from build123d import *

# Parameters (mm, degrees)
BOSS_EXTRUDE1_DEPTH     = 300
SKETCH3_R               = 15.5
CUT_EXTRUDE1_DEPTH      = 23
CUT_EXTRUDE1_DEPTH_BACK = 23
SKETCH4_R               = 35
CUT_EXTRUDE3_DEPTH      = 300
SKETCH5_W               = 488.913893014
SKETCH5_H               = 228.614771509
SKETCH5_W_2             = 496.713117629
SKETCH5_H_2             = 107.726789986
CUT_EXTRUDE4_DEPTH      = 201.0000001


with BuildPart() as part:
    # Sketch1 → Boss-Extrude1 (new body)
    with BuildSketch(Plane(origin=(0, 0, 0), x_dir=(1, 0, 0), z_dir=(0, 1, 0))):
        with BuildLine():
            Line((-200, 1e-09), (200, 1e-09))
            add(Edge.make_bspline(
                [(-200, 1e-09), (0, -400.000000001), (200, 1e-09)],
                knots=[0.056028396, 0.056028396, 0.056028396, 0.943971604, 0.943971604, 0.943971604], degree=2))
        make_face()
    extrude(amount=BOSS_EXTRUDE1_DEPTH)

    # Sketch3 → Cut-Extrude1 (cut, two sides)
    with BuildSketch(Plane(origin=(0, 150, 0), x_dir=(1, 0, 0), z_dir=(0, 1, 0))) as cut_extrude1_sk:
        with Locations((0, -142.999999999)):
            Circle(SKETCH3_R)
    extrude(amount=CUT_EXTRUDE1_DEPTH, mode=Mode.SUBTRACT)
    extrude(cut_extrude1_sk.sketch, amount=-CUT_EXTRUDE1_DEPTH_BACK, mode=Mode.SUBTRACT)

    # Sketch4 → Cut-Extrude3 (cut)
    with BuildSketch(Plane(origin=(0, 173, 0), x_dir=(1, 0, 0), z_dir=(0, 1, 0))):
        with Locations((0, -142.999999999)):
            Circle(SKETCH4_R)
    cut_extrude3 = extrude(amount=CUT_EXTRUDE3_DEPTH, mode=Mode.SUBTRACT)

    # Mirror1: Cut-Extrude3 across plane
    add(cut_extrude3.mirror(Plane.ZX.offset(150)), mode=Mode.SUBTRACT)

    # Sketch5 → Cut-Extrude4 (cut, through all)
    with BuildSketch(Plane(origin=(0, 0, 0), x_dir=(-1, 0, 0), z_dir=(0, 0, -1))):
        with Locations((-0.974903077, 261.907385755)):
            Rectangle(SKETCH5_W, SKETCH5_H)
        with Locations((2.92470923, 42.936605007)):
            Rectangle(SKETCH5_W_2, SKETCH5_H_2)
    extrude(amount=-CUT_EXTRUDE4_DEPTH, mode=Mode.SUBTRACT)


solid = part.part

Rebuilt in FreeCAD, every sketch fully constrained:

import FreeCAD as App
import Part
import Sketcher


def add_polygon(sketch, points):
    """Adds a closed chain of lines whose ends are joined by coincident constraints."""
    first, n = sketch.GeometryCount, len(points)
    for a, b in zip(points, points[1:] + points[:1]):
        sketch.addGeometry(Part.LineSegment(App.Vector(*a, 0), App.Vector(*b, 0)), False)
    for i in range(n):
        sketch.addConstraint(Sketcher.Constraint("Coincident", first + i, 2, first + (i + 1) % n, 1))

doc = App.newDocument("Part")
params = doc.addObject("Spreadsheet::Sheet", "Params")
for row, (alias, value) in enumerate([
    ("pad1_length", "300 mm"),
    ("sketch2_diameter", "31 mm"),
    ("pocket1_length", "23 mm"),
    ("pocket1_length2", "23 mm"),
    ("sketch3_diameter", "70 mm"),
    ("pocket2_length", "300 mm"),
], start=1):
    params.set(f"A{row}", alias)
    params.set(f"B{row}", "=" + value)
    params.setAlias(f"B{row}", alias)

body = doc.addObject("PartDesign::Body", "Body")

# Sketch on XZ plane
sketch1 = doc.addObject("Sketcher::SketchObject", "Sketch")
body.addObject(sketch1)
sketch1.AttachmentSupport = (doc.XZ_Plane, [""])
sketch1.MapMode = "FlatFace"
sketch1.addGeometry([
    Part.LineSegment(App.Vector(200, 0, 0), App.Vector(-200, 0, 0)),
    Part.BSplineCurve([App.Vector(-200, 0, 0), App.Vector(0, 400, 0), App.Vector(200, 0, 0)], [3, 3], [0.056028396, 0.943971604], False, 2, [1, 1, 1], False),
], False)
sketch1.addConstraint([
    Sketcher.Constraint("Block", 1),
    Sketcher.Constraint("Coincident", 0, 1, 1, 2),
    Sketcher.Constraint("Coincident", 1, 1, 0, 2),
])
pad1 = doc.addObject("PartDesign::Pad", "Pad")
body.addObject(pad1)
pad1.Profile = sketch1
pad1.setExpression("Length", "Params.pad1_length")
pad1.Reversed = True

# Sketch on XZ plane
sketch2 = doc.addObject("Sketcher::SketchObject", "Sketch001")
body.addObject(sketch2)
sketch2.AttachmentSupport = (doc.XZ_Plane, [""])
sketch2.MapMode = "FlatFace"
sketch2.AttachmentOffset = App.Placement(App.Vector(0, 0, -150), App.Rotation())
sketch2.addGeometry(Part.Circle(App.Vector(0, 143, 0), App.Vector(0, 0, 1), 15.5), False)
sketch2.addConstraint([
    Sketcher.Constraint("PointOnObject", 0, 3, -2),
    Sketcher.Constraint("Diameter", 0, 31.0),
    Sketcher.Constraint("DistanceY", -1, 1, 0, 3, 143.0),
])
sketch2.setExpression("Constraints[1]", "Params.sketch2_diameter")
pocket1 = doc.addObject("PartDesign::Pocket", "Pocket")
body.addObject(pocket1)
pocket1.Profile = sketch2
pocket1.Type = "TwoLengths"
pocket1.setExpression("Length", "Params.pocket1_length")
pocket1.setExpression("Length2", "Params.pocket1_length2")

# Sketch on XZ plane
sketch3 = doc.addObject("Sketcher::SketchObject", "Sketch002")
body.addObject(sketch3)
sketch3.AttachmentSupport = (doc.XZ_Plane, [""])
sketch3.MapMode = "FlatFace"
sketch3.AttachmentOffset = App.Placement(App.Vector(0, 0, -173), App.Rotation())
sketch3.addGeometry(Part.Circle(App.Vector(0, 143, 0), App.Vector(0, 0, 1), 35), False)
sketch3.addConstraint([
    Sketcher.Constraint("PointOnObject", 0, 3, -2),
    Sketcher.Constraint("Diameter", 0, 70.0),
    Sketcher.Constraint("DistanceY", -1, 1, 0, 3, 143.0),
])
sketch3.setExpression("Constraints[1]", "Params.sketch3_diameter")
pocket2 = doc.addObject("PartDesign::Pocket", "Pocket001")
body.addObject(pocket2)
pocket2.Profile = sketch3
pocket2.setExpression("Length", "Params.pocket2_length")
doc.recompute()

datumplane = doc.addObject("PartDesign::Plane", "DatumPlane")
body.addObject(datumplane)
datumplane.AttachmentSupport = (doc.XZ_Plane, [""])
datumplane.MapMode = "FlatFace"
datumplane.AttachmentOffset = App.Placement(App.Vector(0, 0, -150), App.Rotation())
mirrored = doc.addObject("PartDesign::Mirrored", "Mirrored")
body.addObject(mirrored)
mirrored.Originals = [pocket2]
mirrored.MirrorPlane = (datumplane, [""])
body.Tip = mirrored

# Sketch on XY plane
sketch4 = doc.addObject("Sketcher::SketchObject", "Sketch003")
body.addObject(sketch4)
sketch4.AttachmentSupport = (doc.XY_Plane, [""])
sketch4.MapMode = "FlatFace"
add_polygon(sketch4, [(245.43185, 376.214772), (245.43185, 147.6), (-243.482043, 147.6), (-243.482043, 376.214772)])  # lines 0-3
add_polygon(sketch4, [(245.43185, 96.8), (245.43185, -10.92679), (-251.281268, -10.92679), (-251.281268, 96.8)])  # lines 4-7
sketch4.addConstraint([
    Sketcher.Constraint("Vertical", 0),
    Sketcher.Constraint("Horizontal", 1),
    Sketcher.Constraint("Vertical", 2),
    Sketcher.Constraint("Horizontal", 3),
    Sketcher.Constraint("Vertical", 4),
    Sketcher.Constraint("Horizontal", 5),
    Sketcher.Constraint("Vertical", 6),
    Sketcher.Constraint("Horizontal", 7),
    Sketcher.Constraint("Vertical", 3, 2, 4, 2),
    Sketcher.Constraint("DistanceY", -1, 1, 0, 2, 147.6),
    Sketcher.Constraint("DistanceY", -1, 1, 6, 2, 96.8),
    Sketcher.Constraint("DistanceY", 0, 2, 0, 1, 228.614772),
    Sketcher.Constraint("DistanceY", 4, 2, 4, 1, 107.72679),
    Sketcher.Constraint("DistanceX", 1, 2, 1, 1, 488.913893),
    Sketcher.Constraint("DistanceX", 5, 2, 5, 1, 496.713118),
    Sketcher.Constraint("DistanceX", -1, 1, 0, 2, 245.43185),
])
pocket3 = doc.addObject("PartDesign::Pocket", "Pocket002")
body.addObject(pocket3)
pocket3.Profile = sketch4
pocket3.Type = "ThroughAll"
pocket3.Reversed = True

doc.recompute()
